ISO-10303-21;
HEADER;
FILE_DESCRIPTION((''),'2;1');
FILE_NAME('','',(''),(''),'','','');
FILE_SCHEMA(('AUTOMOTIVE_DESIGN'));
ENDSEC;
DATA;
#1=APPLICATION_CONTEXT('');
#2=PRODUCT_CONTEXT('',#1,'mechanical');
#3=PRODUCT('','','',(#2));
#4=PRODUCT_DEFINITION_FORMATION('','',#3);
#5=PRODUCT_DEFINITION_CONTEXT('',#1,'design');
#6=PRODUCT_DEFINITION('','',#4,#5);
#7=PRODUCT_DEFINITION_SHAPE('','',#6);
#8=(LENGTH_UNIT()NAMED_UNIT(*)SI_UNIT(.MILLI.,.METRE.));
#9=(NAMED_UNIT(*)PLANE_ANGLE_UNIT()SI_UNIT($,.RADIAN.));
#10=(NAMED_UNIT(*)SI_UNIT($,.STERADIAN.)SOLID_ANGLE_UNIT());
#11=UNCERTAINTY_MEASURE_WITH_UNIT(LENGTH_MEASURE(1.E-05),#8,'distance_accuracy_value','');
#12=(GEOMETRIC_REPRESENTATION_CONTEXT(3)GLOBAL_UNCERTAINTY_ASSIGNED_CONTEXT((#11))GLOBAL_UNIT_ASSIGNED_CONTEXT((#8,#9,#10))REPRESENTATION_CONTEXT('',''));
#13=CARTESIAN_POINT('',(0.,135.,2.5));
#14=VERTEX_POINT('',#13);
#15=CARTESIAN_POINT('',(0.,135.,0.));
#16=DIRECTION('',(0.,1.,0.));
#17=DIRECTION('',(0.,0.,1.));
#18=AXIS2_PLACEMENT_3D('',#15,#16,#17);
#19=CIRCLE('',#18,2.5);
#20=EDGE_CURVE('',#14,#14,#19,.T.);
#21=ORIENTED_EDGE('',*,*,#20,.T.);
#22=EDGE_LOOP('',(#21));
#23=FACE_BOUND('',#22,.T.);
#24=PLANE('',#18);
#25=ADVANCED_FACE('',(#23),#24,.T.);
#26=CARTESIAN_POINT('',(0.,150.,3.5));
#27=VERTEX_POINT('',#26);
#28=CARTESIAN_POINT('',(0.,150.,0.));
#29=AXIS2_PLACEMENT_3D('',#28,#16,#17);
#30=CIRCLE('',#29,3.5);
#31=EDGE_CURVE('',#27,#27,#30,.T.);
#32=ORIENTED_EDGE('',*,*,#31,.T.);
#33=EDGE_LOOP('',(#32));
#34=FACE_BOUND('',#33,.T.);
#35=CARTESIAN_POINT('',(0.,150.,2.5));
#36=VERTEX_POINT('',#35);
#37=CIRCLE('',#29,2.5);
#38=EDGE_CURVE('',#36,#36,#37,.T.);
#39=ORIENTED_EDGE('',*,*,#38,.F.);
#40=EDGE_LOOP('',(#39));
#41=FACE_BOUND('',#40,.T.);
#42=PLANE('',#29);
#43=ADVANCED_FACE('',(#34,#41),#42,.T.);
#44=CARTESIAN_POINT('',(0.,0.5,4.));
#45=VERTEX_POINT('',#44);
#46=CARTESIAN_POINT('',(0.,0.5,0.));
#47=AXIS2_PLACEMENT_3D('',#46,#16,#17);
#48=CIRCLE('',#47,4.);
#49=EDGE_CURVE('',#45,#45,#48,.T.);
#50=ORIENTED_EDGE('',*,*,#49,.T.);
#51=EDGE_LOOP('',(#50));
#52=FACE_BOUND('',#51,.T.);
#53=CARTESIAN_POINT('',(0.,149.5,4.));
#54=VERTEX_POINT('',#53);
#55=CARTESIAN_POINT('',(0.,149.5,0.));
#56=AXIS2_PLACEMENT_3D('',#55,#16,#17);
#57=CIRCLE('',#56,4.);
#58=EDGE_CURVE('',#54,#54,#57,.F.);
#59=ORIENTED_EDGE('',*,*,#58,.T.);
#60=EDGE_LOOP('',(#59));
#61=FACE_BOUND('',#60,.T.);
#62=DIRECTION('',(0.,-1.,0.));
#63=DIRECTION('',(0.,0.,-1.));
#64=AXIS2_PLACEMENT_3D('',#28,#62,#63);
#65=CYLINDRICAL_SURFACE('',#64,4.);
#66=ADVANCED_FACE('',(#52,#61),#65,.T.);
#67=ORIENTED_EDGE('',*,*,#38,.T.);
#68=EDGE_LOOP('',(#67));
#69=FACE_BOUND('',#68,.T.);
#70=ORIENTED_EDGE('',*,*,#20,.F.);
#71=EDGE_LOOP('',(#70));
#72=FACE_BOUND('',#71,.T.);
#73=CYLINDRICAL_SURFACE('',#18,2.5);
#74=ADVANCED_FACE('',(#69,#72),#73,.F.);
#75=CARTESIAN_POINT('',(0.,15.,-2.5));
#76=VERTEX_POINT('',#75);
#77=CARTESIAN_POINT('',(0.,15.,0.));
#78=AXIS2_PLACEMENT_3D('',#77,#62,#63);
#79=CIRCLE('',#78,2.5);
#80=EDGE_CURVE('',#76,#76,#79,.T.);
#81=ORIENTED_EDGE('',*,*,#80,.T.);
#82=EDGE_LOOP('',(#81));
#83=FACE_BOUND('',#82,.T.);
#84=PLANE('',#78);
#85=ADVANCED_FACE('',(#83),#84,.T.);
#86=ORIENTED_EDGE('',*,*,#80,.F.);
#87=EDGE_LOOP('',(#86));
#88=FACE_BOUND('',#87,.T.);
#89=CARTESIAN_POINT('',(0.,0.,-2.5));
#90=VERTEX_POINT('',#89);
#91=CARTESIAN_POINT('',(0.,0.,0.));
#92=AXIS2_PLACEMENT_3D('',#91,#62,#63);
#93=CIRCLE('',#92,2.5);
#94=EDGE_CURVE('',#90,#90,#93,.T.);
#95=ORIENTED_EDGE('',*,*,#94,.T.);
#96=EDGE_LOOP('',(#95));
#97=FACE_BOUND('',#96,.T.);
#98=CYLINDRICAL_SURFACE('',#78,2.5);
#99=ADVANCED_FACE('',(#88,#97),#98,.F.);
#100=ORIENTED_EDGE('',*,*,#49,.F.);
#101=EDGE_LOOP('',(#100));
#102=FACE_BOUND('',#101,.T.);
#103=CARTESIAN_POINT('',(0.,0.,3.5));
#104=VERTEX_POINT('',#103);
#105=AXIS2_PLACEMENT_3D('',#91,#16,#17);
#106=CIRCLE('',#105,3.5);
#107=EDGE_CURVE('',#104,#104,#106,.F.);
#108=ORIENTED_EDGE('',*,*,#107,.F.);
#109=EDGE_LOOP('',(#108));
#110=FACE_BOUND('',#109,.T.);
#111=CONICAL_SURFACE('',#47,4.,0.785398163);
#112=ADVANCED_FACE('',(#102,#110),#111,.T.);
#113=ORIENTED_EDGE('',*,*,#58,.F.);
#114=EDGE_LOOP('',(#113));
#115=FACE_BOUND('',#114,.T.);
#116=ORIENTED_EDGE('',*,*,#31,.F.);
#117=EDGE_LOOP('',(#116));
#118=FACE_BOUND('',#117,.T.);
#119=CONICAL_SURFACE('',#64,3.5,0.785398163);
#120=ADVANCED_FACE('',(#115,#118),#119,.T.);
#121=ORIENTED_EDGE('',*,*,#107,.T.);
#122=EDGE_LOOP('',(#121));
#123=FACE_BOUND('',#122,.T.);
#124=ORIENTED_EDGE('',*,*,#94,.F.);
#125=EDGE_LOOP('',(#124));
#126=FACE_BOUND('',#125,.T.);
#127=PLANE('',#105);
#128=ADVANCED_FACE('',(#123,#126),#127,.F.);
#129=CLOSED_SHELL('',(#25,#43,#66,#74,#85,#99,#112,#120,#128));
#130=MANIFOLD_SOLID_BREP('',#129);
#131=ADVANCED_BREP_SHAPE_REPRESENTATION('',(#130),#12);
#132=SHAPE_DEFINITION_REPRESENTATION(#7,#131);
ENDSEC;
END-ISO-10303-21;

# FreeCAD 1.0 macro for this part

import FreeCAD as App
import Part
import Sketcher

V = App.Vector


def edges_at(feature, points):
    """Names of the edges that pass closest to the given points."""
    edges = feature.Shape.Edges
    near = lambda p: min(range(len(edges)), key=lambda i: edges[i].distToShape(Part.Vertex(*p))[0])
    return sorted({f"Edge{near(p) + 1}" for p in points})

doc = App.newDocument("Part")
body = doc.addObject("PartDesign::Body", "Body")

# Sketch on XZ plane
sketch1 = body.newObject("Sketcher::SketchObject", "Sketch")
sketch1.AttachmentSupport = (doc.getObject("XZ_Plane"), [""])
sketch1.MapMode = "FlatFace"
sketch1.addGeometry(Part.Circle(V(0, 0, 0), V(0, 0, 1), 4), False)
sketch1.addConstraint([
    Sketcher.Constraint("Coincident", 0, 3, -1, 1),
    Sketcher.Constraint("Diameter", 0, 8.0),
])
pad1 = body.newObject("PartDesign::Pad", "Pad")
pad1.Profile = sketch1
pad1.Length = 150
pad1.Reversed = True
doc.recompute()

chamfer = body.newObject("PartDesign::Chamfer", "Chamfer")
chamfer.Base = (pad1, edges_at(pad1, [(-4, 0, 0), (-4, 150, 0)]))
chamfer.Size = 0.5

# Sketch on XZ plane
sketch2 = body.newObject("Sketcher::SketchObject", "Sketch001")
sketch2.AttachmentSupport = (doc.getObject("XZ_Plane"), [""])
sketch2.MapMode = "FlatFace"
sketch2.addGeometry(Part.Circle(V(0, 0, 0), V(0, 0, 1), 2.5), False)
sketch2.addConstraint([
    Sketcher.Constraint("Coincident", 0, 3, -1, 1),
    Sketcher.Constraint("Diameter", 0, 5.0),
])
pocket1 = body.newObject("PartDesign::Pocket", "Pocket")
pocket1.Profile = sketch2
pocket1.Length = 15

# Sketch on XZ plane
sketch3 = body.newObject("Sketcher::SketchObject", "Sketch002")
sketch3.AttachmentSupport = (doc.getObject("XZ_Plane"), [""])
sketch3.MapMode = "FlatFace"
sketch3.AttachmentOffset = App.Placement(V(0, 0, -150), App.Rotation())
sketch3.addGeometry(Part.Circle(V(0, 0, 0), V(0, 0, 1), 2.5), False)
sketch3.addConstraint([
    Sketcher.Constraint("Coincident", 0, 3, -1, 1),
    Sketcher.Constraint("Diameter", 0, 5.0),
])
pocket2 = body.newObject("PartDesign::Pocket", "Pocket001")
pocket2.Profile = sketch3
pocket2.Length = 15
pocket2.Reversed = True

doc.recompute()
